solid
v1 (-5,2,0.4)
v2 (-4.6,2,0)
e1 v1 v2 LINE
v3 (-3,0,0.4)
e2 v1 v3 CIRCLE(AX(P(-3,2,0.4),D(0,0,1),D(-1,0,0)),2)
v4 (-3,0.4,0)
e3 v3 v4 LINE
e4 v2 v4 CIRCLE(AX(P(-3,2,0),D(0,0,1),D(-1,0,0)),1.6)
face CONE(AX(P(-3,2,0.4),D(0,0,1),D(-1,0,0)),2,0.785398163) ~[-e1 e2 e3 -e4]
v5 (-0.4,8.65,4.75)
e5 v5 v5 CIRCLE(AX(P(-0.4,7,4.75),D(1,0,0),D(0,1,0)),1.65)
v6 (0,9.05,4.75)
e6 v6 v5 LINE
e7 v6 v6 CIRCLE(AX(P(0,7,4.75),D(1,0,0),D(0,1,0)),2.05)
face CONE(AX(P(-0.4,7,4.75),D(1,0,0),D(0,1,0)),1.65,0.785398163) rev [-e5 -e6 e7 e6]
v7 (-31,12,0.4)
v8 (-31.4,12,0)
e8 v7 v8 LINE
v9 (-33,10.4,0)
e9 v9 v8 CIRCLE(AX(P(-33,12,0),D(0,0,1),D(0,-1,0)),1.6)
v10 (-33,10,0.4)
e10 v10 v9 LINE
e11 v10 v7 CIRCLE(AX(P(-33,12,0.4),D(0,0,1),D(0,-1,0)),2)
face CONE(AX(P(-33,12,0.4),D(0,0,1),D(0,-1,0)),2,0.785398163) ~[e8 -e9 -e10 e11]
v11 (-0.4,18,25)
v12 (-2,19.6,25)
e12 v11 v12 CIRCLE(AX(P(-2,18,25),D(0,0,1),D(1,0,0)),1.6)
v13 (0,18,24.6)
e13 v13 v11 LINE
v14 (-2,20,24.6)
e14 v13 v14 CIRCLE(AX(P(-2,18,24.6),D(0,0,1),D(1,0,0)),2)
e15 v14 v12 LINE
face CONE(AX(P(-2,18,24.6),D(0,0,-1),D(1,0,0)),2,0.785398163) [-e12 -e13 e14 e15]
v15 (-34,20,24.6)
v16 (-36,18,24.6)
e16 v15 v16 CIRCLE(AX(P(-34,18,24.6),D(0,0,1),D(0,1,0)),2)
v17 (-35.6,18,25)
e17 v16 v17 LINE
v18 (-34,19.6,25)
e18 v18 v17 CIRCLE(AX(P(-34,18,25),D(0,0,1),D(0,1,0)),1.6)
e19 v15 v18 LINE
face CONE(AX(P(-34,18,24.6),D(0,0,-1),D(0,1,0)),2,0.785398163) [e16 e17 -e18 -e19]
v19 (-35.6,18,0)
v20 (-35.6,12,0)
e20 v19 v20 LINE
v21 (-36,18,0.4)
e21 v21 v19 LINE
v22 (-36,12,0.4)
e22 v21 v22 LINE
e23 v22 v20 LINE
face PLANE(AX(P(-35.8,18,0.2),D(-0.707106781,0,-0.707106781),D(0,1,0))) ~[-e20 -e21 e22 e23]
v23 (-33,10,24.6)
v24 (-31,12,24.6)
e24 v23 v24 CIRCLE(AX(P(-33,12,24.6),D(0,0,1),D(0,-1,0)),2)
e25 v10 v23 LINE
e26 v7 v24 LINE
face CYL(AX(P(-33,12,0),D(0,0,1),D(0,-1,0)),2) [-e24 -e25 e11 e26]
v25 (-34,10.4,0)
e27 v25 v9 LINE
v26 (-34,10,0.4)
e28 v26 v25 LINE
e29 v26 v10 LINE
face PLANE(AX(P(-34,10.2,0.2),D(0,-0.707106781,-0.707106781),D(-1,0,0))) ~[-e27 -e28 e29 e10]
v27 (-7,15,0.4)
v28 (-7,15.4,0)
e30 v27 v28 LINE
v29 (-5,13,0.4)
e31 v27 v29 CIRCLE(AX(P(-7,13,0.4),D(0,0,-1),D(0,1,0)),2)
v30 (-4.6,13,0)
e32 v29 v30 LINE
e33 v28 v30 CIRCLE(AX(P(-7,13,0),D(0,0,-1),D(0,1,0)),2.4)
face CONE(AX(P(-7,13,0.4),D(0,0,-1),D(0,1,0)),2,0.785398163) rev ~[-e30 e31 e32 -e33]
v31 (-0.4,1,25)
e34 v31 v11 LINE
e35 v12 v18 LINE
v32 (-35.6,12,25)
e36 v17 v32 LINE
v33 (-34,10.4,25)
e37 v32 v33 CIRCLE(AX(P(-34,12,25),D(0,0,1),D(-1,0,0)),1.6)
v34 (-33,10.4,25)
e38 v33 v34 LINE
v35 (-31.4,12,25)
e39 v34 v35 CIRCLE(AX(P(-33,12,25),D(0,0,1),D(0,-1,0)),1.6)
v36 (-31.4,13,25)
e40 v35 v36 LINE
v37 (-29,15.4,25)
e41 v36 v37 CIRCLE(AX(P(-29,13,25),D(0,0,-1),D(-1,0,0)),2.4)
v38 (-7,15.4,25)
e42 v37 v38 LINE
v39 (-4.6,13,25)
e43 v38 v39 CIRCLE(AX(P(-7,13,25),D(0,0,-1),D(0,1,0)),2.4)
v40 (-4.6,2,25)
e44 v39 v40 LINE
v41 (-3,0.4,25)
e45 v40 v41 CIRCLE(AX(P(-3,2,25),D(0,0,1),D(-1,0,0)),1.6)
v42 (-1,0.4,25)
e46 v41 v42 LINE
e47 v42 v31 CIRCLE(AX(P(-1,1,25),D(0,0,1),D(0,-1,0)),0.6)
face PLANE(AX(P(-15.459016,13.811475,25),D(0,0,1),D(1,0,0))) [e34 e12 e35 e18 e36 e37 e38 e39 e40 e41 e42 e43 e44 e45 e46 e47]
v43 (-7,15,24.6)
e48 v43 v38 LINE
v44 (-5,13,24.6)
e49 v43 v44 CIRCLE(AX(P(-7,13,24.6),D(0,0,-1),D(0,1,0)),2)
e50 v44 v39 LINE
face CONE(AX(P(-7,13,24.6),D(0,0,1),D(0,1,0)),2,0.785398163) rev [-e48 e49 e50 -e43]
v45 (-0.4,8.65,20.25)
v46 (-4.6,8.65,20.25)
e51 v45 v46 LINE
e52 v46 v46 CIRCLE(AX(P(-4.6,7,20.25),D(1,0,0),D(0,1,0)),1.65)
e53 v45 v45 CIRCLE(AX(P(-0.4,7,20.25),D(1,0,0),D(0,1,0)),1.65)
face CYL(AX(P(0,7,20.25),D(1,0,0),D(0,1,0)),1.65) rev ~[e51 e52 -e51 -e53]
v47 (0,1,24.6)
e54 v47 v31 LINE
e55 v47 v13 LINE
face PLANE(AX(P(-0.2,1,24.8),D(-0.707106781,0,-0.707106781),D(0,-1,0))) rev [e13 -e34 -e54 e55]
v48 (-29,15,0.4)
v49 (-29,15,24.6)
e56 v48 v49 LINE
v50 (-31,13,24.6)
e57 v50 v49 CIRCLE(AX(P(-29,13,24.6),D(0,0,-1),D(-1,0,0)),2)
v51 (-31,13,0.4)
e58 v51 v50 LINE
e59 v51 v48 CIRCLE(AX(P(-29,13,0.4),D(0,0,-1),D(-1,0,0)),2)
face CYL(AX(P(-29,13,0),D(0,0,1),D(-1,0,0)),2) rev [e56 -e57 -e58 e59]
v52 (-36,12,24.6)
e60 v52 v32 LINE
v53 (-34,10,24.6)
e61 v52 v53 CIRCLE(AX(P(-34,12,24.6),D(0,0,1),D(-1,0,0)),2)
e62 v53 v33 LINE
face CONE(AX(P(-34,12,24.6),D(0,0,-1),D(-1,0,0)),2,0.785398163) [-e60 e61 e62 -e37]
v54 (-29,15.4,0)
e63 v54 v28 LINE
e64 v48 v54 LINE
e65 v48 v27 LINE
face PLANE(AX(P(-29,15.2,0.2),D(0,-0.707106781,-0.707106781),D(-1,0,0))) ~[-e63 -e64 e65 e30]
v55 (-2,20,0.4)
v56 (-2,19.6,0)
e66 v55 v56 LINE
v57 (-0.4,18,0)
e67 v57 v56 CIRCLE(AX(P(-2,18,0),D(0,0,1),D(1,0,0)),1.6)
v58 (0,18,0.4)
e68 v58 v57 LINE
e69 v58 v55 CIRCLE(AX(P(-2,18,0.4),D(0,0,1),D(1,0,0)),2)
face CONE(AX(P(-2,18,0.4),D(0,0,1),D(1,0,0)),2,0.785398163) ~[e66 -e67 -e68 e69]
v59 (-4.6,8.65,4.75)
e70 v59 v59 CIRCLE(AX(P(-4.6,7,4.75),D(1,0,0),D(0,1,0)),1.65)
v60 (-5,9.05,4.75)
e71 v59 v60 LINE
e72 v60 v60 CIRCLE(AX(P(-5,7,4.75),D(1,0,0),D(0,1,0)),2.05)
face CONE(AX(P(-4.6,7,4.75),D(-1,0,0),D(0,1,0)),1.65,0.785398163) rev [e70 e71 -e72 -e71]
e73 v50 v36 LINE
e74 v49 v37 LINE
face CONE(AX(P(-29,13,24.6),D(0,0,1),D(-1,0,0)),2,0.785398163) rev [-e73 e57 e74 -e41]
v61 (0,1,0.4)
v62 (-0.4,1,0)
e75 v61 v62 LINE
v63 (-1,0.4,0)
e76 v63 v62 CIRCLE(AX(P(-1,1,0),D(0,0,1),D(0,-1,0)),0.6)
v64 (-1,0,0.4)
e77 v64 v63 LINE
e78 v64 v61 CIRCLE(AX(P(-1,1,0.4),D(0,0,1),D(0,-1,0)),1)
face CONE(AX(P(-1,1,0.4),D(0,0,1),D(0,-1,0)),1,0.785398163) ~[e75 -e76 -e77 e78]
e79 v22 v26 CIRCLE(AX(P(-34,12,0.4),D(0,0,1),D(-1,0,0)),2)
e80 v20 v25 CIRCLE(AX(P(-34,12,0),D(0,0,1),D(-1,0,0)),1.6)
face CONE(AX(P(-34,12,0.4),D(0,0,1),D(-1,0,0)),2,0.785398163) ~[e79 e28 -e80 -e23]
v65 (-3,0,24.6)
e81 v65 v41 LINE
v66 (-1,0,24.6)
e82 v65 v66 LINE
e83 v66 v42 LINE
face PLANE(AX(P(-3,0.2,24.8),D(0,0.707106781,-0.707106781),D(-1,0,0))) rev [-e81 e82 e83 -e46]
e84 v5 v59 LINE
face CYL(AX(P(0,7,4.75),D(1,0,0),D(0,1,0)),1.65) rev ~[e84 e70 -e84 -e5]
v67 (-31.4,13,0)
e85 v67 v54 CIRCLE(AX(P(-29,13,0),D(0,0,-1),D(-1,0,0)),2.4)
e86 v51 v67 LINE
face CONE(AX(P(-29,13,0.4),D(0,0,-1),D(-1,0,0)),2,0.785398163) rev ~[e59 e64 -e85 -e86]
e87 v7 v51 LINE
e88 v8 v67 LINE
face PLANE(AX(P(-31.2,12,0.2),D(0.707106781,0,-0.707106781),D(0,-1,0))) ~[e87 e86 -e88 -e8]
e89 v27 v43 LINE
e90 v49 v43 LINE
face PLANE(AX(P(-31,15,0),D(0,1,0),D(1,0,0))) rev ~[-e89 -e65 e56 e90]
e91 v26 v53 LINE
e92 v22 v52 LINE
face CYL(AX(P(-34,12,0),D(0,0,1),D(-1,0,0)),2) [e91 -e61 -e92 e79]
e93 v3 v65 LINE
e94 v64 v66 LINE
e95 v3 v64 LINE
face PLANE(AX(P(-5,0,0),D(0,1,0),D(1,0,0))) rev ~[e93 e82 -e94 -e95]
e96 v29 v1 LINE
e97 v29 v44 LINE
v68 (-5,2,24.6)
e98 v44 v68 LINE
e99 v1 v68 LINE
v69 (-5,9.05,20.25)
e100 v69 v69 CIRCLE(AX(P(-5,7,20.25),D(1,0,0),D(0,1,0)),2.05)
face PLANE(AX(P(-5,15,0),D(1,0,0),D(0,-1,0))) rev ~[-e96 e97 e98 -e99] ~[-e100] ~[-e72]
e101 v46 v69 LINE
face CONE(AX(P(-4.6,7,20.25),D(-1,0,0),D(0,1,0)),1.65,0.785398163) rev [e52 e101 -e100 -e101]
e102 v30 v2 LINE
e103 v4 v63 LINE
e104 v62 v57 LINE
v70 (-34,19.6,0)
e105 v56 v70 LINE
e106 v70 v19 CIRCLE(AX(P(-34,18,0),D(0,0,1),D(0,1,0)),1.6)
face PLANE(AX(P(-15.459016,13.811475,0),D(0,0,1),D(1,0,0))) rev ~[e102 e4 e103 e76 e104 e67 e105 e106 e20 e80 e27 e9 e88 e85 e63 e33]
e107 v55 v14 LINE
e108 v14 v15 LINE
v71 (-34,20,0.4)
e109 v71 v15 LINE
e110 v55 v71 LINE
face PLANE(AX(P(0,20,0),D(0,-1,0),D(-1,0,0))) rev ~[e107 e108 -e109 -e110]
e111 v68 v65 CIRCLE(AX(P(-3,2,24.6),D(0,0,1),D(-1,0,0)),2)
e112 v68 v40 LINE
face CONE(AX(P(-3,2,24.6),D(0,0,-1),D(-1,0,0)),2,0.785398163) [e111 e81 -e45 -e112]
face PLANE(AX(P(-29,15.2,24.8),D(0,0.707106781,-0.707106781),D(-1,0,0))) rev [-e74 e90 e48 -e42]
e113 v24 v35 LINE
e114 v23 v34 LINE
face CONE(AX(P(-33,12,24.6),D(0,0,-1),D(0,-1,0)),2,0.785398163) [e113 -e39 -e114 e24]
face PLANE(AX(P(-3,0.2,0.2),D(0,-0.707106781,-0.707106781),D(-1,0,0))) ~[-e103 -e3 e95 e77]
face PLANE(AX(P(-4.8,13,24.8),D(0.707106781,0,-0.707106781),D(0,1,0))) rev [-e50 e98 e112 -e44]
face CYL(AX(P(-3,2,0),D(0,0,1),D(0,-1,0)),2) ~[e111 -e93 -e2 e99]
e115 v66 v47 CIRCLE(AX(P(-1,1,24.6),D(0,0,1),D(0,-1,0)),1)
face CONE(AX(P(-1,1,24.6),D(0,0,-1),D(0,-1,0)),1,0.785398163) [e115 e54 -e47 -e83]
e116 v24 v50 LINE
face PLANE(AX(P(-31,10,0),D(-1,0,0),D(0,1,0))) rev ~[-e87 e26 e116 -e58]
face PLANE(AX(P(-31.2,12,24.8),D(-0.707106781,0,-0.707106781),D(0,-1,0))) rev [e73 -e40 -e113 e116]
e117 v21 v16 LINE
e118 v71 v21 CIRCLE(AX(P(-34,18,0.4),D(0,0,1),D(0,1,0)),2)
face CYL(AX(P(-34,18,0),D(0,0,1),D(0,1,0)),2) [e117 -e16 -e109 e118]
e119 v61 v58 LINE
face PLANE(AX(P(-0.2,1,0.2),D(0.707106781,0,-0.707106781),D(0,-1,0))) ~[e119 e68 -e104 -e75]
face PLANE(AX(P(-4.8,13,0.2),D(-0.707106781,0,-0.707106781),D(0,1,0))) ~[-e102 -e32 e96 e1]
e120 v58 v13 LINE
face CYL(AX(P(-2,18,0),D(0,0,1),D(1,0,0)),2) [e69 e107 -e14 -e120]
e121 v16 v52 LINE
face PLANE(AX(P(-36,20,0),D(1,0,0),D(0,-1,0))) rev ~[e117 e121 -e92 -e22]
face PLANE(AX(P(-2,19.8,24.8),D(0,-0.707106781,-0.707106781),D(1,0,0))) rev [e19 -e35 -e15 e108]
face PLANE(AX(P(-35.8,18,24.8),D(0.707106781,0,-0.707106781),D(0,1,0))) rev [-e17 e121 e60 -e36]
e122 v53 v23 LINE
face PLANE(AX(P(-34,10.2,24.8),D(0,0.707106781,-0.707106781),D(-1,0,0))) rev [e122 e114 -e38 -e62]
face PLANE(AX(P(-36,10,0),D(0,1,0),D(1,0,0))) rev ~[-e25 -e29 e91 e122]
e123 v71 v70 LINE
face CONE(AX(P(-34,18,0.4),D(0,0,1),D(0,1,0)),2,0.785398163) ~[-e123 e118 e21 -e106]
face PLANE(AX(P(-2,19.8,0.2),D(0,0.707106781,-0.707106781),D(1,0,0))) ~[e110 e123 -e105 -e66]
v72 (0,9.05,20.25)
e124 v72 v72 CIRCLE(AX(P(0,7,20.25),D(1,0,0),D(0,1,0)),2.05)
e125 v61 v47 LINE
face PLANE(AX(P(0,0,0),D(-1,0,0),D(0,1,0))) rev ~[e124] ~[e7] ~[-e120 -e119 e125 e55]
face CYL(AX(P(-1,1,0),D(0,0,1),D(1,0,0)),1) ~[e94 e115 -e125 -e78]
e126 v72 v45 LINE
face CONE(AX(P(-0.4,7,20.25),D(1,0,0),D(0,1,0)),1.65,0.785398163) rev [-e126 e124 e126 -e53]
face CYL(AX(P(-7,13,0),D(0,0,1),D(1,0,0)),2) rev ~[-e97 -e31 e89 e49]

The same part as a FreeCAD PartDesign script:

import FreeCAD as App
import Part
import Sketcher
from FreeCAD import Vector


def edges_at(feature, points):
    """Names of the edges that pass closest to the given points."""
    edges = feature.Shape.Edges
    near = lambda p: min(range(len(edges)), key=lambda i: edges[i].distToShape(Part.Vertex(*p))[0])
    return sorted({f"Edge{near(p) + 1}" for p in points})


def add_polygon(sketch, points):
    """Adds a closed chain of lines whose ends are joined by coincident constraints."""
    first, n = sketch.GeometryCount, len(points)
    for a, b in zip(points, points[1:] + points[:1]):
        sketch.addGeometry(Part.LineSegment(App.Vector(*a, 0), App.Vector(*b, 0)), False)
    for i in range(n):
        sketch.addConstraint(Sketcher.Constraint("Coincident", first + i, 2, first + (i + 1) % n, 1))

doc = App.newDocument("Part")
body = doc.addObject("PartDesign::Body", "Body")

sketch1 = doc.addObject("Sketcher::SketchObject", "Sketch")
body.addObject(sketch1)
sketch1.AttachmentSupport = (doc.XY_Plane, [""])
sketch1.MapMode = "FlatFace"
add_polygon(sketch1, [(0, 0), (0, 20), (-36, 20), (-36, 10), (-31, 10), (-31, 15), (-5, 15), (-5, 0)])
sketch1.addConstraint([
    Sketcher.Constraint("Vertical", 0),
    Sketcher.Constraint("Horizontal", 1),
    Sketcher.Constraint("Vertical", 2),
    Sketcher.Constraint("Horizontal", 3),
    Sketcher.Constraint("Vertical", 4),
    Sketcher.Constraint("Horizontal", 5),
    Sketcher.Constraint("Vertical", 6),
    Sketcher.Constraint("Horizontal", 7),
    Sketcher.Constraint("Coincident", 7, 2, -1, 1),
    Sketcher.Constraint("Equal", 3, 7),
    Sketcher.Constraint("Equal", 7, 4),
    Sketcher.Constraint("DistanceX", 1, 2, 1, 1, 36.0),
    Sketcher.Constraint("DistanceX", 3, 1, 3, 2, 5.0),
    Sketcher.Constraint("DistanceY", 0, 1, 0, 2, 20.0),
    Sketcher.Constraint("DistanceY", 2, 2, 2, 1, 10.0),
])
pad1 = doc.addObject("PartDesign::Pad", "Pad")
body.addObject(pad1)
pad1.Profile = sketch1
pad1.Length = 25

sketch2 = doc.addObject("Sketcher::SketchObject", "Sketch001")
body.addObject(sketch2)
sketch2.AttachmentSupport = (doc.YZ_Plane, [""])
sketch2.MapMode = "FlatFace"
sketch2.addGeometry([
    Part.Circle(Vector(7, 4.8, 0), Vector(0, 0, 1), 1.6),
    Part.Circle(Vector(7, 20.2, 0), Vector(0, 0, 1), 1.6),
], False)
sketch2.addConstraint([
    Sketcher.Constraint("Equal", 0, 1),
    Sketcher.Constraint("Vertical", 0, 3, 1, 3),
    Sketcher.Constraint("Diameter", 0, 3.3),
    Sketcher.Constraint("DistanceX", -1, 1, 0, 3, 7.0),
    Sketcher.Constraint("DistanceY", 0, 3, 1, 3, 15.5),
    Sketcher.Constraint("DistanceY", -1, 1, 0, 3, 4.75),
])
pocket1 = doc.addObject("PartDesign::Pocket", "Pocket")
body.addObject(pocket1)
pocket1.Profile = sketch2
pocket1.Type = "ThroughAll"
doc.recompute()

fillet = doc.addObject("PartDesign::Fillet", "Fillet")
body.addObject(fillet)
fillet.Base = (pocket1, edges_at(pocket1, [
    (-5, 15, 12.5),
    (0, 20, 12.5),
    (-5, 0, 12.5),
    (-36, 20, 12.5),
    (-36, 10, 12.5),
    (-31, 10, 12.5),
    (-31, 15, 12.5),
]))
fillet.Radius = 2
doc.recompute()

fillet2 = doc.addObject("PartDesign::Fillet", "Fillet001")
body.addObject(fillet2)
fillet2.Base = (fillet, edges_at(fillet, [(0, 0, 12.5)]))
fillet2.Radius = 1
doc.recompute()

chamfer = doc.addObject("PartDesign::Chamfer", "Chamfer")
body.addObject(chamfer)
chamfer.Base = (fillet2, edges_at(fillet2, [
    (0, 9.5, 0),
    (-0.293, 0.293, 0),
    (-0.586, 19.414, 0),
    (-2, 0, 0),
    (-18, 20, 0),
    (-4.414, 0.586, 0),
    (-35.414, 19.414, 0),
    (-5, 7.5, 0),
    (-36, 15, 0),
    (-5.586, 14.414, 0),
    (-35.414, 10.586, 0),
    (-18, 15, 0),
    (-33.5, 10, 0),
    (-30.414, 14.414, 0),
    (-31.586, 10.586, 0),
    (-31, 12.5, 0),
    (0, 5.35, 20.25),
    (0, 5.35, 4.75),
    (-5, 5.35, 4.75),
    (-5, 5.35, 20.25),
    (0, 9.5, 25),
    (-0.293, 0.293, 25),
    (-0.586, 19.414, 25),
    (-2, 0, 25),
    (-18, 20, 25),
    (-4.414, 0.586, 25),
    (-35.414, 19.414, 25),
    (-5, 7.5, 25),
    (-36, 15, 25),
    (-5.586, 14.414, 25),
    (-35.414, 10.586, 25),
    (-18, 15, 25),
    (-33.5, 10, 25),
    (-30.414, 14.414, 25),
    (-31.586, 10.586, 25),
    (-31, 12.5, 25),
]))
chamfer.Size = 0.4

doc.recompute()
